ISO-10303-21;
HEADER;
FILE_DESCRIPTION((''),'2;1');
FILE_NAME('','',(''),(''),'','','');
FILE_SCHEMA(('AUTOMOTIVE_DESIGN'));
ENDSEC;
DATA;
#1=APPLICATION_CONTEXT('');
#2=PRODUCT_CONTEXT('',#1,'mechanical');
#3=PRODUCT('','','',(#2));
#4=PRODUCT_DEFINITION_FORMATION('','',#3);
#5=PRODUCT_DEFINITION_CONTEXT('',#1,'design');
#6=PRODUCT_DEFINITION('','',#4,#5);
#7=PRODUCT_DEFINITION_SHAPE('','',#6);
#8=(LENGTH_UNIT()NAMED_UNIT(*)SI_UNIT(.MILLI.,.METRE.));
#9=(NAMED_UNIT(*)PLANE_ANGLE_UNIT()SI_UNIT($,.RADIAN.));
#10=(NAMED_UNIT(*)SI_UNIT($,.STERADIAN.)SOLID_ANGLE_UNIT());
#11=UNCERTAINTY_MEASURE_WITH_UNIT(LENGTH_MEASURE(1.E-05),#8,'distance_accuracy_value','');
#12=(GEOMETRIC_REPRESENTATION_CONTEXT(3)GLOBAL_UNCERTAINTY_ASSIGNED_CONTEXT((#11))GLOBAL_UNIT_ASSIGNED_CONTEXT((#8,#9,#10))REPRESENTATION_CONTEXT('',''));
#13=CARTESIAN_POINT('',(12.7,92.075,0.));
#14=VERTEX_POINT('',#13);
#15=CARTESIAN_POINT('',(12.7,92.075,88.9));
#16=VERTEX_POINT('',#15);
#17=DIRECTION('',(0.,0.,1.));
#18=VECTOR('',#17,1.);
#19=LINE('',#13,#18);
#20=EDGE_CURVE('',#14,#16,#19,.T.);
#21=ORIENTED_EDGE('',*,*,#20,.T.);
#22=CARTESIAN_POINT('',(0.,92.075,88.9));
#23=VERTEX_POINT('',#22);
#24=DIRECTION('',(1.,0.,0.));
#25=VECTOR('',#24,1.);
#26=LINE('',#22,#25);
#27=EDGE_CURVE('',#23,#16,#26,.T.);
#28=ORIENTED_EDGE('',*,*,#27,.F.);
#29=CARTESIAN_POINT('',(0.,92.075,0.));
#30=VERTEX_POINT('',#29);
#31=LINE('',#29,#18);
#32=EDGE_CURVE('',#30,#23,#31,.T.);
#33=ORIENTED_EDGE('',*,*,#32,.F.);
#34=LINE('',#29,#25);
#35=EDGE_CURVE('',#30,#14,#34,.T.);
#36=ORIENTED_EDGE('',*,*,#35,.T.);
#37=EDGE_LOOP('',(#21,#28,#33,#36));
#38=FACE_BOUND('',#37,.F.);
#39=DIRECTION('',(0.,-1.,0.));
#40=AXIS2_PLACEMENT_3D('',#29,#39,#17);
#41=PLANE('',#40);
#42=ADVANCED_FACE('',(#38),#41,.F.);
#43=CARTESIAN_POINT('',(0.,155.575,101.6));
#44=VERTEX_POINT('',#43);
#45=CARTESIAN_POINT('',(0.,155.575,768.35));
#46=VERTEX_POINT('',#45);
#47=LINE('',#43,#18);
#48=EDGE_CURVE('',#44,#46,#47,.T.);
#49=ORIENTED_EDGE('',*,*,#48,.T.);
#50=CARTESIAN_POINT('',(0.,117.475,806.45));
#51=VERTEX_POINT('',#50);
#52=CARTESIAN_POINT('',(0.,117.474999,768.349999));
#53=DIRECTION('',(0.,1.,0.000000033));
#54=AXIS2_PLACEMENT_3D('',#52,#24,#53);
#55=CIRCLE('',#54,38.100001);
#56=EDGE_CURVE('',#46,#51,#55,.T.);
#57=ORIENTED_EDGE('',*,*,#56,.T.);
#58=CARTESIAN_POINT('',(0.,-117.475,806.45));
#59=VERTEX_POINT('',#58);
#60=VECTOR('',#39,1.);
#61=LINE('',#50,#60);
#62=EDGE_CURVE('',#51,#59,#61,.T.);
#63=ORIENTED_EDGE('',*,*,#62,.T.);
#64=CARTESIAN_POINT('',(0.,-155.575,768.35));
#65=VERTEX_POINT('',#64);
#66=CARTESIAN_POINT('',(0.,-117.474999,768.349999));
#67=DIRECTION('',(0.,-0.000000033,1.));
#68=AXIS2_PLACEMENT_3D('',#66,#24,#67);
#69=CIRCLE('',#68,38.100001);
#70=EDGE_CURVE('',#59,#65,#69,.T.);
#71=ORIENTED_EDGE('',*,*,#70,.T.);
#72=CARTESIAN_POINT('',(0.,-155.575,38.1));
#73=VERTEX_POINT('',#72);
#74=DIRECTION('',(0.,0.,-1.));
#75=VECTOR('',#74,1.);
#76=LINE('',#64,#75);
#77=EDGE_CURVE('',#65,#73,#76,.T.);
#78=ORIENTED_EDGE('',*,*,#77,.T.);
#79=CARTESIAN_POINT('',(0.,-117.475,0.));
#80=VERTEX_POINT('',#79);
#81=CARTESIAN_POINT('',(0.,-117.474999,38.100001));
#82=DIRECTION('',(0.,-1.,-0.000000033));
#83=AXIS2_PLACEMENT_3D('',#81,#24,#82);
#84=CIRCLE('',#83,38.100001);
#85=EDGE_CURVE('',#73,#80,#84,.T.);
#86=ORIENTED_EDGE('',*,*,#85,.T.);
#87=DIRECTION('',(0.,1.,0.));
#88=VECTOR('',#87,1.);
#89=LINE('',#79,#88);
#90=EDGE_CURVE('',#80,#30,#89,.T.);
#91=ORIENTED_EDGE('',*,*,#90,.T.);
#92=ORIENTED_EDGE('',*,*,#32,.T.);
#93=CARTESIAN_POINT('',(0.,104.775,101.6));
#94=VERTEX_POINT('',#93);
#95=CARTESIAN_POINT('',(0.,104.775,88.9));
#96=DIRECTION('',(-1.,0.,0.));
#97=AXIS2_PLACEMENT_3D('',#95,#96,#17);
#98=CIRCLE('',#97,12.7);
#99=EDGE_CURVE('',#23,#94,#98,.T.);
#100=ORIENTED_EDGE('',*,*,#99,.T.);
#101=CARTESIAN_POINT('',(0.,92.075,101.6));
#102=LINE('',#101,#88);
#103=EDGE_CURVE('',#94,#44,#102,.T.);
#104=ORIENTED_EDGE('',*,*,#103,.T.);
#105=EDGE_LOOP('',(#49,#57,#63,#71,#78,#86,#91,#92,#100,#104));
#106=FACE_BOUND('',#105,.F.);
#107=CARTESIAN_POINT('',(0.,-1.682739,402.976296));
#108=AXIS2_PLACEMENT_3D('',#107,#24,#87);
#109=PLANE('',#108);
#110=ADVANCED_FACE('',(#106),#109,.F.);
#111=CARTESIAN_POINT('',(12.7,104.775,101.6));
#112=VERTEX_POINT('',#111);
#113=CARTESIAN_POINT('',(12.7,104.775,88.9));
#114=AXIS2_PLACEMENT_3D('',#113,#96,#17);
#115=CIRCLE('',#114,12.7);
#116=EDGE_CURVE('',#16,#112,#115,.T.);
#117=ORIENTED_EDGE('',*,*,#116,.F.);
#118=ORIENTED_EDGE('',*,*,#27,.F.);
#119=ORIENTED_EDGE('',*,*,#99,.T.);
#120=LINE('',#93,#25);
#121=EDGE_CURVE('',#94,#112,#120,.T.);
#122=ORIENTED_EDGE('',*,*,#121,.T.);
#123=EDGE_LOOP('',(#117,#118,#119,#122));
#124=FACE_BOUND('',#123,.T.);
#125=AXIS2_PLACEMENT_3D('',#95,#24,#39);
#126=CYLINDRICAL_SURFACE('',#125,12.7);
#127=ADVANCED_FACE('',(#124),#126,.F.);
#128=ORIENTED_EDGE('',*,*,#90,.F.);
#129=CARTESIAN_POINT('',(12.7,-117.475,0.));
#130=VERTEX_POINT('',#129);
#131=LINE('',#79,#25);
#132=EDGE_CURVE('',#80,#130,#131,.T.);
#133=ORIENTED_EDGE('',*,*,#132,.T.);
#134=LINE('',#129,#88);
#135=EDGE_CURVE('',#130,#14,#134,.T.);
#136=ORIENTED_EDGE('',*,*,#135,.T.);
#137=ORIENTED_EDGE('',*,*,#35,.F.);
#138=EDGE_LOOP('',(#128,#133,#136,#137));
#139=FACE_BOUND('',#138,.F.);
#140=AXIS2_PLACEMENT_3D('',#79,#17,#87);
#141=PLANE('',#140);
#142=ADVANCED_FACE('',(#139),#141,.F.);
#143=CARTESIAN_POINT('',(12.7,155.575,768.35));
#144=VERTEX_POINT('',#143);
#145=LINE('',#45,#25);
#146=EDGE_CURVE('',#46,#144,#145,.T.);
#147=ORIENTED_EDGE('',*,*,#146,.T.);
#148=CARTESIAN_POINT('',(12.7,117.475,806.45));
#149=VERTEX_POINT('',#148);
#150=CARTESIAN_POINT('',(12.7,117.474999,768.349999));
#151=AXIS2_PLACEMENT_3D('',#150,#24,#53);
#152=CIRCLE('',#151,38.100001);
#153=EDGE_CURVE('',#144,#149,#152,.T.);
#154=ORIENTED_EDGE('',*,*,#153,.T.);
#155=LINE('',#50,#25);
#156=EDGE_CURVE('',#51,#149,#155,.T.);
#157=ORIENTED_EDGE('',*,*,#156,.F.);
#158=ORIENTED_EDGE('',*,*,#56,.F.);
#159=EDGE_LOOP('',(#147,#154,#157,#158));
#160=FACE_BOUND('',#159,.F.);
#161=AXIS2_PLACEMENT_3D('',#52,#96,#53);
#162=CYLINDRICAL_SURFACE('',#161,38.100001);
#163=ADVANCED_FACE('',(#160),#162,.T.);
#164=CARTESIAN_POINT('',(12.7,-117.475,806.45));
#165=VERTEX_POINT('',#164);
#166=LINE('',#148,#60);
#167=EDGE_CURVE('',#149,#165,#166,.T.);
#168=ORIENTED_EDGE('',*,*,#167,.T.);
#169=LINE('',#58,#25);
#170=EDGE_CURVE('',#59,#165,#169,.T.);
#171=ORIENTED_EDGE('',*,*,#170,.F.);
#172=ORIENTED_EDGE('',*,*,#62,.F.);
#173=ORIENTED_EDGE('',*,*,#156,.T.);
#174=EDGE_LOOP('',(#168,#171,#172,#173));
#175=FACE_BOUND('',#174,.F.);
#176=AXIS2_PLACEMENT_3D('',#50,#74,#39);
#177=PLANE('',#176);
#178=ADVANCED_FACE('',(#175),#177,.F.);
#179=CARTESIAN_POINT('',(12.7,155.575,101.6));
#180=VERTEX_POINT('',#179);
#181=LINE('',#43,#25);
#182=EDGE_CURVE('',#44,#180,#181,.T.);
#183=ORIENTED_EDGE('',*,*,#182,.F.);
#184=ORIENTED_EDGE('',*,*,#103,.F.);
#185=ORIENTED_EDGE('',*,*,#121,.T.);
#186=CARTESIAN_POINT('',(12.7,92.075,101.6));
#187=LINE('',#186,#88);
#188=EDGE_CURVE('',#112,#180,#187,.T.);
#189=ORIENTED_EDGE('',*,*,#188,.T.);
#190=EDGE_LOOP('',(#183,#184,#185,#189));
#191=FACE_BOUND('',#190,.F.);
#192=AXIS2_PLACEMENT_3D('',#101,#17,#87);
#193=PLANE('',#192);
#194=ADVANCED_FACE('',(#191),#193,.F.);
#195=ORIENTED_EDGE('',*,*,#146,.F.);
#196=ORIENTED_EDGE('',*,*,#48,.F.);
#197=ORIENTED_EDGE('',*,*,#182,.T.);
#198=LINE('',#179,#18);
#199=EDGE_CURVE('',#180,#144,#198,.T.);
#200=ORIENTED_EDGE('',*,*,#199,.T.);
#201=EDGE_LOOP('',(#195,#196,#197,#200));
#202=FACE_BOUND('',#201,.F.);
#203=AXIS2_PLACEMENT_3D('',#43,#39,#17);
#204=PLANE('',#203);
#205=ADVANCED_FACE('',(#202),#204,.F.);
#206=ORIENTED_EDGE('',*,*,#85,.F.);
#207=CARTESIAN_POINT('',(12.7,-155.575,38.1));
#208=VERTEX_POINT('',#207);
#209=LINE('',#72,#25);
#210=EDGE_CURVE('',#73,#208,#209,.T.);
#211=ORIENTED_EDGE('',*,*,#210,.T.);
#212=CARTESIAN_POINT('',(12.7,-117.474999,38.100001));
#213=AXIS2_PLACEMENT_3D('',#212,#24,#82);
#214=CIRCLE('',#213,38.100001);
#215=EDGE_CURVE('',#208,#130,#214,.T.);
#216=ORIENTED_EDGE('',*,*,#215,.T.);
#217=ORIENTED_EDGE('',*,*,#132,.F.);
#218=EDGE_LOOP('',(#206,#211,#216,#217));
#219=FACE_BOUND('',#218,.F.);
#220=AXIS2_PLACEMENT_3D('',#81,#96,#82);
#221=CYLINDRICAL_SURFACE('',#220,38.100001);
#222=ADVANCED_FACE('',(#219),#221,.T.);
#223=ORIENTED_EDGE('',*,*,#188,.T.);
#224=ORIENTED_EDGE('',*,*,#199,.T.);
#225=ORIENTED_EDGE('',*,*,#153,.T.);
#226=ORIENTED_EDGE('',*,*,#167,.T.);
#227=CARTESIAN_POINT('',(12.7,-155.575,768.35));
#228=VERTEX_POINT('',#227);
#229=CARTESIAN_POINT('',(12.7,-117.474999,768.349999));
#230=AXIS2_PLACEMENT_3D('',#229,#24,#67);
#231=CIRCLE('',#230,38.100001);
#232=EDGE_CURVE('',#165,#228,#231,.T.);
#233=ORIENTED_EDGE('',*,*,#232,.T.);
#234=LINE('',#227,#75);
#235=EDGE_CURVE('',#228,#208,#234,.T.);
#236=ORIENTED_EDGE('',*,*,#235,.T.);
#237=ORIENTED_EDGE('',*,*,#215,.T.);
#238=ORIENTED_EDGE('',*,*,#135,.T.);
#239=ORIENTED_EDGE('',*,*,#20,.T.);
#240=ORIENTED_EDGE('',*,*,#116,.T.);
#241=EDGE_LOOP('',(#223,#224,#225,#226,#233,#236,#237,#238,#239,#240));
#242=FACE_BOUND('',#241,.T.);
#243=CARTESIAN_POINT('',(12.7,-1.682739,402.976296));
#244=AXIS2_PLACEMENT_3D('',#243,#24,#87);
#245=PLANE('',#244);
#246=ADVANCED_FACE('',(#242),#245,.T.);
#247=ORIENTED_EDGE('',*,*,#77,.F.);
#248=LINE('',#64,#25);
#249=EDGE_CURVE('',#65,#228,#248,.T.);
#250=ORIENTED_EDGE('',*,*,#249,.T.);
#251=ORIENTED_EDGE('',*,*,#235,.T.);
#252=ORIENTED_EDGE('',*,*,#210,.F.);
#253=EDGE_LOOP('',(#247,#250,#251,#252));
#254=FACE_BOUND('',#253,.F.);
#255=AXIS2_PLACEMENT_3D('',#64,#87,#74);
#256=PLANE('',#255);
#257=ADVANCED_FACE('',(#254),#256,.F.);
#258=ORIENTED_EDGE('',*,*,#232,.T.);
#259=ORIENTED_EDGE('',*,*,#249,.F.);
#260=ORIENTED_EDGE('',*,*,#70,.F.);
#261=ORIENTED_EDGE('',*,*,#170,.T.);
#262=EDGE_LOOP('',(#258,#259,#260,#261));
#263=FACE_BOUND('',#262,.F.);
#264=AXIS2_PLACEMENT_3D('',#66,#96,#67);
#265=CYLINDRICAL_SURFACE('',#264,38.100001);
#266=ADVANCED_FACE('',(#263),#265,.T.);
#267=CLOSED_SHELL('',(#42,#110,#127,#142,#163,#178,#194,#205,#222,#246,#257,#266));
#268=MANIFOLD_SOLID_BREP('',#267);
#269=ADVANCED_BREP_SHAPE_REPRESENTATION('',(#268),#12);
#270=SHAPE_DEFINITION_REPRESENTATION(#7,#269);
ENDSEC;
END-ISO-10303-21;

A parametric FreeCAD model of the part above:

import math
import FreeCAD as App
import Part
import Sketcher

V = App.Vector
Q = App.Units.Quantity


def edges_at(feature, points):
    """Names of the edges that pass closest to the given points."""
    edges = feature.Shape.Edges
    near = lambda p: min(range(len(edges)), key=lambda i: edges[i].distToShape(Part.Vertex(*p))[0])
    return sorted({f"Edge{near(p) + 1}" for p in points})

doc = App.newDocument("Part")
params = doc.addObject("Spreadsheet::Sheet", "Params")
for row, (alias, value) in enumerate([
    ("sketch1_radius", "1.5 in"),
    ("sketch1_height", "4 in"),
    ("sketch1_width", "2.5 in"),
    ("sketch1_width2", "9.25 in"),
    ("sketch1_height2", "28.75 in"),
    ("pad1_length", "0.5 in"),
    ("fillet_radius", "0.5 in"),
], start=1):
    params.set(f"A{row}", alias)
    params.set(f"B{row}", "=" + value)
    params.setAlias(f"B{row}", alias)

body = doc.addObject("PartDesign::Body", "Body")

# Sketch on YZ plane
sketch1 = doc.addObject("Sketcher::SketchObject", "Sketch")
body.addObject(sketch1)
sketch1.AttachmentSupport = (doc.YZ_Plane, [""])
sketch1.MapMode = "FlatFace"
sketch1.addGeometry(Part.LineSegment(V(117.475, 806.45, 0), V(-117.475, 806.45, 0)), False)
sketch1.addGeometry(Part.ArcOfCircle(Part.Circle(V(-117.474999, 768.349999, 0), V(0, 0, 1), 38.100001), math.radians(90.000002), math.radians(179.999998)), False)
sketch1.addGeometry(Part.LineSegment(V(-155.575, 768.35, 0), V(-155.575, 38.1, 0)), False)
sketch1.addGeometry(Part.ArcOfCircle(Part.Circle(V(-117.474999, 38.100001, 0), V(0, 0, 1), 38.100001), math.radians(-179.999998), math.radians(-90.000002)), False)
sketch1.addGeometry(Part.LineSegment(V(-117.475, 0, 0), V(92.075, 0, 0)), False)
sketch1.addGeometry(Part.LineSegment(V(92.075, 0, 0), V(92.075, 101.6, 0)), False)
sketch1.addGeometry(Part.LineSegment(V(92.075, 101.6, 0), V(155.575, 101.6, 0)), False)
sketch1.addGeometry(Part.LineSegment(V(155.575, 101.6, 0), V(155.575, 768.35, 0)), False)
sketch1.addGeometry(Part.ArcOfCircle(Part.Circle(V(117.474999, 768.349999, 0), V(0, 0, 1), 38.100001), math.radians(0.000002), math.radians(89.999998)), False)
sketch1.addConstraint(Sketcher.Constraint("Tangent", 0, 2, 1, 1))
sketch1.addConstraint(Sketcher.Constraint("Tangent", 1, 2, 2, 1))
sketch1.addConstraint(Sketcher.Constraint("Tangent", 2, 2, 3, 1))
sketch1.addConstraint(Sketcher.Constraint("Tangent", 3, 2, 4, 1))
sketch1.addConstraint(Sketcher.Constraint("Coincident", 4, 2, 5, 1))
sketch1.addConstraint(Sketcher.Constraint("Coincident", 5, 2, 6, 1))
sketch1.addConstraint(Sketcher.Constraint("Coincident", 6, 2, 7, 1))
sketch1.addConstraint(Sketcher.Constraint("Tangent", 7, 2, 8, 1))
sketch1.addConstraint(Sketcher.Constraint("Tangent", 8, 2, 0, 1))
sketch1.addConstraint(Sketcher.Constraint("Horizontal", 0))
sketch1.addConstraint(Sketcher.Constraint("Vertical", 2))
sketch1.addConstraint(Sketcher.Constraint("Horizontal", 4))
sketch1.addConstraint(Sketcher.Constraint("Vertical", 5))
sketch1.addConstraint(Sketcher.Constraint("Horizontal", 6))
sketch1.addConstraint(Sketcher.Constraint("Vertical", 7))
sketch1.addConstraint(Sketcher.Constraint("Equal", 1, 3))
sketch1.addConstraint(Sketcher.Constraint("Equal", 3, 8))
sketch1.addConstraint(Sketcher.Constraint("PointOnObject", 3, 2, -1))
sketch1.addConstraint(Sketcher.Constraint("Radius", 1, Q("1.5 in")))
sketch1.addConstraint(Sketcher.Constraint("DistanceY", 5, 1, 5, 2, Q("4 in")))
sketch1.addConstraint(Sketcher.Constraint("DistanceX", 6, 1, 6, 2, Q("2.5 in")))
sketch1.addConstraint(Sketcher.Constraint("DistanceX", 0, 2, 0, 1, Q("9.25 in")))
sketch1.addConstraint(Sketcher.Constraint("DistanceY", 2, 2, 2, 1, Q("28.75 in")))
sketch1.addConstraint(Sketcher.Constraint("DistanceX", 1, 3, -1, 1, Q("4.625 in")))
sketch1.setExpression("Constraints[18]", "Params.sketch1_radius")
sketch1.setExpression("Constraints[19]", "Params.sketch1_height")
sketch1.setExpression("Constraints[20]", "Params.sketch1_width")
sketch1.setExpression("Constraints[21]", "Params.sketch1_width2")
sketch1.setExpression("Constraints[22]", "Params.sketch1_height2")
pad1 = doc.addObject("PartDesign::Pad", "Pad")
body.addObject(pad1)
pad1.Profile = sketch1
pad1.setExpression("Length", "Params.pad1_length")
doc.recompute()

fillet = doc.addObject("PartDesign::Fillet", "Fillet")
body.addObject(fillet)
fillet.Base = (pad1, edges_at(pad1, [(6.35, 92.075, 101.6)]))
fillet.setExpression("Radius", "Params.fillet_radius")

doc.recompute()
